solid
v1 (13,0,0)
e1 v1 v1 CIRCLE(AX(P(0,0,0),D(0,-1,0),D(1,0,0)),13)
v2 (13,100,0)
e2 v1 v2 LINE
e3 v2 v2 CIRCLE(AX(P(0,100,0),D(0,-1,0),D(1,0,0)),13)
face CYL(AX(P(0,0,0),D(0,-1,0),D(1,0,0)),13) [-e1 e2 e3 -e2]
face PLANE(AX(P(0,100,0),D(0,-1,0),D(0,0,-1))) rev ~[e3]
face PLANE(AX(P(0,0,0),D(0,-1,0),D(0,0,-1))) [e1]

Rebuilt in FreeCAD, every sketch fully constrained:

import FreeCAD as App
import Part
import Sketcher
Q = App.Units.Quantity

doc = App.newDocument("Part")
body = doc.addObject("PartDesign::Body", "Body")

# Sketch on XZ plane
sketch1 = doc.addObject("Sketcher::SketchObject", "Sketch")
body.addObject(sketch1)
sketch1.AttachmentSupport = (doc.XZ_Plane, [""])
sketch1.MapMode = "FlatFace"
sketch1.addGeometry(Part.Circle(App.Vector(0, 0, 0), App.Vector(0, 0, 1), 13), False)
sketch1.addConstraint([
    Sketcher.Constraint("Coincident", 0, 3, -1, 1),
    Sketcher.Constraint("Diameter", 0, Q("26 mm")),
])
pad1 = doc.addObject("PartDesign::Pad", "Pad")
body.addObject(pad1)
pad1.Profile = sketch1
pad1.Length = 100
pad1.Reversed = True

doc.recompute()
